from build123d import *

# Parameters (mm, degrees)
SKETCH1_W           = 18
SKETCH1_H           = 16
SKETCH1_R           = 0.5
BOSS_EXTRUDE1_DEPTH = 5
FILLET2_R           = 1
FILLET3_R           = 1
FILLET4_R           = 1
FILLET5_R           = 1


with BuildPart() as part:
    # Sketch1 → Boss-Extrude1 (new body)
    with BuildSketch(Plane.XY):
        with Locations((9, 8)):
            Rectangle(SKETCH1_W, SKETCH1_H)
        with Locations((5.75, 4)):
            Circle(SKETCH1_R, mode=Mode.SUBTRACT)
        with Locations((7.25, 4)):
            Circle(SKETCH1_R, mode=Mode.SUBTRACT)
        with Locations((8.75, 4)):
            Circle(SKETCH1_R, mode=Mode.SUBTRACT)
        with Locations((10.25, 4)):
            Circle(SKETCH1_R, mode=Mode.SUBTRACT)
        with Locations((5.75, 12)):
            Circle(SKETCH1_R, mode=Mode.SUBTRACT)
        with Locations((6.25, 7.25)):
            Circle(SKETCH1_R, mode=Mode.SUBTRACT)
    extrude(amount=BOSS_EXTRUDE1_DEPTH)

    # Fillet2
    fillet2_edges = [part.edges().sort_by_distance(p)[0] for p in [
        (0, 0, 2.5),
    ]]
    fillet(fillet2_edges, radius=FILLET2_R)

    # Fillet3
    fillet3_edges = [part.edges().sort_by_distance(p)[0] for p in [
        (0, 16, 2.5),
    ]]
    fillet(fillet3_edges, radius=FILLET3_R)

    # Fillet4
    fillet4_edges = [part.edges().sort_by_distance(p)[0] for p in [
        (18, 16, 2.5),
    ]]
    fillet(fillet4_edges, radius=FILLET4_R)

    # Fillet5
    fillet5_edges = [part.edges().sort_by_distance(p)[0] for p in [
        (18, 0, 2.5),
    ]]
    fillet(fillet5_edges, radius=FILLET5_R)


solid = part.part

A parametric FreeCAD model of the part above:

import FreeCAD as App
import Part
import Sketcher


def edges_at(feature, points):
    """Names of the edges that pass closest to the given points."""
    edges = feature.Shape.Edges
    near = lambda p: min(range(len(edges)), key=lambda i: edges[i].distToShape(Part.Vertex(*p))[0])
    return sorted({f"Edge{near(p) + 1}" for p in points})

doc = App.newDocument("Part")
body = doc.addObject("PartDesign::Body", "Body")

# Sketch on XY plane
sketch1 = body.newObject("Sketcher::SketchObject", "Sketch")
sketch1.AttachmentSupport = (doc.getObject("XY_Plane"), [""])
sketch1.MapMode = "FlatFace"
sketch1.addGeometry([
    Part.LineSegment(App.Vector(0, 16, 0), App.Vector(0, 0, 0)),  # 0
    Part.LineSegment(App.Vector(0, 0, 0), App.Vector(18, 0, 0)),  # 1
    Part.LineSegment(App.Vector(18, 0, 0), App.Vector(18, 16, 0)),  # 2
    Part.LineSegment(App.Vector(18, 16, 0), App.Vector(0, 16, 0)),  # 3
    Part.Circle(App.Vector(5.75, 4, 0), App.Vector(0, 0, 1), 0.5),  # 4
    Part.Circle(App.Vector(7.25, 4, 0), App.Vector(0, 0, 1), 0.5),  # 5
    Part.Circle(App.Vector(6.25, 7.25, 0), App.Vector(0, 0, 1), 0.5),  # 6
    Part.Circle(App.Vector(8.75, 4, 0), App.Vector(0, 0, 1), 0.5),  # 7
    Part.Circle(App.Vector(10.25, 4, 0), App.Vector(0, 0, 1), 0.5),  # 8
    Part.Circle(App.Vector(5.75, 12, 0), App.Vector(0, 0, 1), 0.5),  # 9
], False)
sketch1.addConstraint([
    Sketcher.Constraint("Coincident", 0, 2, 1, 1),
    Sketcher.Constraint("Coincident", 1, 2, 2, 1),
    Sketcher.Constraint("Coincident", 2, 2, 3, 1),
    Sketcher.Constraint("Coincident", 3, 2, 0, 1),
    Sketcher.Constraint("Vertical", 0),
    Sketcher.Constraint("Horizontal", 1),
    Sketcher.Constraint("Vertical", 2),
    Sketcher.Constraint("Horizontal", 3),
    Sketcher.Constraint("Coincident", 0, 2, -1, 1),
    Sketcher.Constraint("Equal", 4, 5),
    Sketcher.Constraint("Equal", 5, 6),
    Sketcher.Constraint("Equal", 6, 7),
    Sketcher.Constraint("Equal", 7, 8),
    Sketcher.Constraint("Equal", 8, 9),
    Sketcher.Constraint("Horizontal", 4, 3, 5, 3),
    Sketcher.Constraint("Horizontal", 5, 3, 7, 3),
    Sketcher.Constraint("Horizontal", 7, 3, 8, 3),
    Sketcher.Constraint("Vertical", 4, 3, 9, 3),
    Sketcher.Constraint("Diameter", 4, 1.0),
    Sketcher.Constraint("DistanceX", 1, 1, 1, 2, 18.0),
    Sketcher.Constraint("DistanceY", 0, 2, 0, 1, 16.0),
    Sketcher.Constraint("DistanceY", -1, 1, 4, 3, 4.0),
    Sketcher.Constraint("DistanceY", -1, 1, 9, 3, 12.0),
    Sketcher.Constraint("DistanceX", 6, 3, 5, 3, 1.0),
    Sketcher.Constraint("DistanceX", 4, 3, 7, 3, 3.0),
    Sketcher.Constraint("DistanceX", 5, 3, 8, 3, 3.0),
    Sketcher.Constraint("DistanceX", 4, 3, 5, 3, 1.5),
    Sketcher.Constraint("DistanceX", -1, 1, 4, 3, 5.75),
    Sketcher.Constraint("DistanceY", -1, 1, 6, 3, 7.25),
])
pad1 = body.newObject("PartDesign::Pad", "Pad")
pad1.Profile = sketch1
pad1.Length = 5
doc.recompute()

fillet = body.newObject("PartDesign::Fillet", "Fillet")
fillet.Base = (pad1, edges_at(pad1, [(0, 0, 2.5)]))
fillet.Radius = 1
doc.recompute()

fillet2 = body.newObject("PartDesign::Fillet", "Fillet001")
fillet2.Base = (fillet, edges_at(fillet, [(0, 16, 2.5)]))
fillet2.Radius = 1
doc.recompute()

fillet3 = body.newObject("PartDesign::Fillet", "Fillet002")
fillet3.Base = (fillet2, edges_at(fillet2, [(18, 16, 2.5)]))
fillet3.Radius = 1
doc.recompute()

fillet4 = body.newObject("PartDesign::Fillet", "Fillet003")
fillet4.Base = (fillet3, edges_at(fillet3, [(18, 0, 2.5)]))
fillet4.Radius = 1

doc.recompute()
